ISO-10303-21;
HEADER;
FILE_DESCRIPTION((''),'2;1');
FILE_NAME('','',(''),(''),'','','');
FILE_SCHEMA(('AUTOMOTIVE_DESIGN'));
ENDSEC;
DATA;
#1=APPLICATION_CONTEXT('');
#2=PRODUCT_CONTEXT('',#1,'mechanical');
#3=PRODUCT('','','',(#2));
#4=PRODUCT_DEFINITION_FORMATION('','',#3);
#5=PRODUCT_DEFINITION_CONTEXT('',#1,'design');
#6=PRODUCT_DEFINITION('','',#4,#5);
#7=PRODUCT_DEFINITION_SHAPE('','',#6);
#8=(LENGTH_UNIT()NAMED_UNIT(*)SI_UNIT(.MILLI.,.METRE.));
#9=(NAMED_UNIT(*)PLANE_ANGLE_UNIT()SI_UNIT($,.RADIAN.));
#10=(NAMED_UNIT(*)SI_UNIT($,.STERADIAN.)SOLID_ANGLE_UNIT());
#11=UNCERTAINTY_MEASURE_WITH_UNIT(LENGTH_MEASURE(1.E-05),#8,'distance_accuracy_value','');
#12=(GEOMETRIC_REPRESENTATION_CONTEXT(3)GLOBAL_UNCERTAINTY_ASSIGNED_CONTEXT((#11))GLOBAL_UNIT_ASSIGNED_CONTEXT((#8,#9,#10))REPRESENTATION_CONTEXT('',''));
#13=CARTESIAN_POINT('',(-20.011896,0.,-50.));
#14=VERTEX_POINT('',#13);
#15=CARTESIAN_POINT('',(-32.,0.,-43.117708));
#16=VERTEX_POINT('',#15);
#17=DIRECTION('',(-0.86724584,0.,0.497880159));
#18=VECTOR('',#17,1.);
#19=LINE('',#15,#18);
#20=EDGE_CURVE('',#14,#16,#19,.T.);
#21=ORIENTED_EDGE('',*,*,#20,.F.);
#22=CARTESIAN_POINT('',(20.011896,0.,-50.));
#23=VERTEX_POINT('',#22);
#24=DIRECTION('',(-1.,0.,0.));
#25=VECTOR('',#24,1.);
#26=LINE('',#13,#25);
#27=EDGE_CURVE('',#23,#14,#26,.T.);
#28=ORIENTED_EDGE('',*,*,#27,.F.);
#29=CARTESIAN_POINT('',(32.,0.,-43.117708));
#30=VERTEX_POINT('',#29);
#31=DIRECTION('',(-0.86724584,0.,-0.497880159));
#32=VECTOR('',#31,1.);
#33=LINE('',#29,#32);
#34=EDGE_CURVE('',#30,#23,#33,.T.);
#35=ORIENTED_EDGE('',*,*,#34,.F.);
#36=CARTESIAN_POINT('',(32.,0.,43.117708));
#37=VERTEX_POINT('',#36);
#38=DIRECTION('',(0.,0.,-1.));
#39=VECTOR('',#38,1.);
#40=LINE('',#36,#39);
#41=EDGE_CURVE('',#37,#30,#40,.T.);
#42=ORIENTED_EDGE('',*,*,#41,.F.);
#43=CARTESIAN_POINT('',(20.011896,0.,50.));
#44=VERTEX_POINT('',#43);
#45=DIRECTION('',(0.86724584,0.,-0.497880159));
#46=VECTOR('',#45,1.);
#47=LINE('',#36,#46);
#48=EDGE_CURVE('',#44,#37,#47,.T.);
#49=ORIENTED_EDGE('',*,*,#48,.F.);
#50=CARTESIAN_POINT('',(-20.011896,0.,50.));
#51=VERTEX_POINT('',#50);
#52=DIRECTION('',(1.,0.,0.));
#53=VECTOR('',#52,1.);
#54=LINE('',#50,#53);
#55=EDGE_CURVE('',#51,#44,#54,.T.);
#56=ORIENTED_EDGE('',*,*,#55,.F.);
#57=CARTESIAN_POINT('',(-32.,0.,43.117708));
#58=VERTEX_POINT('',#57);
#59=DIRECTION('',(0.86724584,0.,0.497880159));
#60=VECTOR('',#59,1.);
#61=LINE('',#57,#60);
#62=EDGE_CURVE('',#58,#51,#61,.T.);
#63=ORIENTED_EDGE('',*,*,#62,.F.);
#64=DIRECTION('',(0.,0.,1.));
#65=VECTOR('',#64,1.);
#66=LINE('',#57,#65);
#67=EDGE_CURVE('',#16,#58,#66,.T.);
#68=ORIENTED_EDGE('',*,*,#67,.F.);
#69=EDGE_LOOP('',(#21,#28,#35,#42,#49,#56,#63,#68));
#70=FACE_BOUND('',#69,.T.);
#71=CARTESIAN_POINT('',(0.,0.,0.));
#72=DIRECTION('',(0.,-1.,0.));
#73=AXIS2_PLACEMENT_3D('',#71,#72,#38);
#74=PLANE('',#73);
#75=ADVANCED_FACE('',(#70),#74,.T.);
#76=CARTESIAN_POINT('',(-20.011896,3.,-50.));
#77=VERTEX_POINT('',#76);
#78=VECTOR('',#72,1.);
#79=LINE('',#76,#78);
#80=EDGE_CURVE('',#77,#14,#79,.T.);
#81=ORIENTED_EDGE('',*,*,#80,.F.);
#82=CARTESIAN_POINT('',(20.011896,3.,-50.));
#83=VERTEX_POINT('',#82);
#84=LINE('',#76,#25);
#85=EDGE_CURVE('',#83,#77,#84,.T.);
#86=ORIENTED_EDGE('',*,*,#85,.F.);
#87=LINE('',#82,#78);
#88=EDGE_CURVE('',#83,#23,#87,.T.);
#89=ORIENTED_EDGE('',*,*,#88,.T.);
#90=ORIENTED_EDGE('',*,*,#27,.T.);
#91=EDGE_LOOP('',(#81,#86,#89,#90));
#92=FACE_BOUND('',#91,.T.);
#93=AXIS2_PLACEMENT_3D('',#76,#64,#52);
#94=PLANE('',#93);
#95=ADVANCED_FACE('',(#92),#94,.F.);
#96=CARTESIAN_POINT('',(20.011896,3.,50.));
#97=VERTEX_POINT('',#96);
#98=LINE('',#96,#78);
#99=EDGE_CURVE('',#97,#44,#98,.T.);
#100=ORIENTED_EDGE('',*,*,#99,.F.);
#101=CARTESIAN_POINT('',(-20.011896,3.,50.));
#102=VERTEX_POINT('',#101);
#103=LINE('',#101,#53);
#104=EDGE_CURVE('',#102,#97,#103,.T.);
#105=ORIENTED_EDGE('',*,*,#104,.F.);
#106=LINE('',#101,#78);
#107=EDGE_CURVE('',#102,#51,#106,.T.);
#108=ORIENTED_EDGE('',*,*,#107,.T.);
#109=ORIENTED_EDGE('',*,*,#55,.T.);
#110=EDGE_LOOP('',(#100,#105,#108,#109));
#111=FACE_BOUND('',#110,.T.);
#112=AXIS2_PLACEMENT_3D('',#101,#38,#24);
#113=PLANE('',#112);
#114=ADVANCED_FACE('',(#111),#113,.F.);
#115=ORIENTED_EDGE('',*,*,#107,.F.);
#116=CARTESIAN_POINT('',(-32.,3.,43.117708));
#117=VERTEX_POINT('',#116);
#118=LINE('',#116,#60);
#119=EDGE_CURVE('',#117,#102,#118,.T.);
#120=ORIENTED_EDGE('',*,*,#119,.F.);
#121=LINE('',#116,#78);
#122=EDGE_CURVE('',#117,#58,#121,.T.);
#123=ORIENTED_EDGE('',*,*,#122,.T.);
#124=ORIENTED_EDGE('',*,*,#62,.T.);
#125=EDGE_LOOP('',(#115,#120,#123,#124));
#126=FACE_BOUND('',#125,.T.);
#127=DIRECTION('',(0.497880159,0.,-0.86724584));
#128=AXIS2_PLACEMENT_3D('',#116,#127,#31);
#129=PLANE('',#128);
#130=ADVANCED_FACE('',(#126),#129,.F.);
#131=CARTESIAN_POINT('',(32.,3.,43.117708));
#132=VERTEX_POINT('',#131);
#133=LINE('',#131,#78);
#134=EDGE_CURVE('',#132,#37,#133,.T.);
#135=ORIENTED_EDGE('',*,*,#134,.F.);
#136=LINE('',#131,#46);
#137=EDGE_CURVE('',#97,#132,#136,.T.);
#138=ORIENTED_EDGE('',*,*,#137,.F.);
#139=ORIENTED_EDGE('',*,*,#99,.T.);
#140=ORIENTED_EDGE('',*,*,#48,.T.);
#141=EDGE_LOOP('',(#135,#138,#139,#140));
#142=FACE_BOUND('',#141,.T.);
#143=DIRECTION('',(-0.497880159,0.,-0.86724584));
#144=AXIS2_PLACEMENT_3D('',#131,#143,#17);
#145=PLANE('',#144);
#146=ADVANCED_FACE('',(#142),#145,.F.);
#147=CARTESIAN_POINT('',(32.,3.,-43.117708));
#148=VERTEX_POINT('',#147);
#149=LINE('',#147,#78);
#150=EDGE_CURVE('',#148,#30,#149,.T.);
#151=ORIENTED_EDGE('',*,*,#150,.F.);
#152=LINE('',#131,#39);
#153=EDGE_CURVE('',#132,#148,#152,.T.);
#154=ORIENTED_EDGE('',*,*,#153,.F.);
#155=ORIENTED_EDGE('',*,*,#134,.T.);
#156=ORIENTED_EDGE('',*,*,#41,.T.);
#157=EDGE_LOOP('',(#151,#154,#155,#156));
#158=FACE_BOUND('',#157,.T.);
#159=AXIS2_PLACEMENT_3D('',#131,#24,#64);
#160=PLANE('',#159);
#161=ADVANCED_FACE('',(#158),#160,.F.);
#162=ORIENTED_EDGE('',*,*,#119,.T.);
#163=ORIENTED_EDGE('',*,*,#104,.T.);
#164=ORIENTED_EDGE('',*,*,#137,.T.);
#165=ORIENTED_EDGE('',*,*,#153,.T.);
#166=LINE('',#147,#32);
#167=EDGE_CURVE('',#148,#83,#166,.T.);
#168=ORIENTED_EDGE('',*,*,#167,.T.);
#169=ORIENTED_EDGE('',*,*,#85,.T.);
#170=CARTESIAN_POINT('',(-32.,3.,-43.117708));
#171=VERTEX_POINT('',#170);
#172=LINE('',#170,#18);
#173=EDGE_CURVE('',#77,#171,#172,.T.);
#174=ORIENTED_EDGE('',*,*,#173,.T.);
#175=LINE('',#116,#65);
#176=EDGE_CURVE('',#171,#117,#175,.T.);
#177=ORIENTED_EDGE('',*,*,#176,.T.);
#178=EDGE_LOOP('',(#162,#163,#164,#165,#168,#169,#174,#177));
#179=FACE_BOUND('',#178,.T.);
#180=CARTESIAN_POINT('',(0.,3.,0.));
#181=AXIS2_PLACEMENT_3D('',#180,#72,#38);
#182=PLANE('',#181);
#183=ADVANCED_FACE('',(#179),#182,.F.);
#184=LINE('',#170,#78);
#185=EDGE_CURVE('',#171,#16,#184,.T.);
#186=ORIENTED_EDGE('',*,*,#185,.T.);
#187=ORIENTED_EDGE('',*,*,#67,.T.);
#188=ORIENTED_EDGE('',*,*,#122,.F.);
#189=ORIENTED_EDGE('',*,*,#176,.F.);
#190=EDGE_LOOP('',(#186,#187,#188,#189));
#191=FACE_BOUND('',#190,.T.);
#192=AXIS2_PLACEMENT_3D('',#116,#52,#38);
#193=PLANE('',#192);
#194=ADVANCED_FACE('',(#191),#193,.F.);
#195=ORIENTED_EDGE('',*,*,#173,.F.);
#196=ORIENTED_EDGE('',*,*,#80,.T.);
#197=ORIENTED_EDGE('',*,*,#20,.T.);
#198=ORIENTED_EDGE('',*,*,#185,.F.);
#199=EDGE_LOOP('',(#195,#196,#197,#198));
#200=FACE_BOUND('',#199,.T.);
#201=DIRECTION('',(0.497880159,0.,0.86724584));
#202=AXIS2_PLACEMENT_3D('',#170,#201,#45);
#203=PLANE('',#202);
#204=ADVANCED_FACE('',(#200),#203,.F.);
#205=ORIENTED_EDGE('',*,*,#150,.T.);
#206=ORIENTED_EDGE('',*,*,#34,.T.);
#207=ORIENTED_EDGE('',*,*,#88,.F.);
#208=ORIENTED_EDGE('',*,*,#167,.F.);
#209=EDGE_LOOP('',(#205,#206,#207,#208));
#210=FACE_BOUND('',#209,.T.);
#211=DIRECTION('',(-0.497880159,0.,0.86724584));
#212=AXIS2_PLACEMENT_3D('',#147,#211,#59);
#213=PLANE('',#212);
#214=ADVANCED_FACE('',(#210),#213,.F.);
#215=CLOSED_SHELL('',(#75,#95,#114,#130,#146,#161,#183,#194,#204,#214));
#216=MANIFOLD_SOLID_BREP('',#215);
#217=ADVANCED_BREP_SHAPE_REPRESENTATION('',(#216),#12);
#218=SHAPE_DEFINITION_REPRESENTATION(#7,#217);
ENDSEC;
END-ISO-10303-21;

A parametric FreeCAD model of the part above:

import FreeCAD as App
import Part
import Sketcher
from FreeCAD import Vector


def add_polygon(sketch, points):
    """Adds a closed chain of lines whose ends are joined by coincident constraints."""
    first, n = sketch.GeometryCount, len(points)
    for a, b in zip(points, points[1:] + points[:1]):
        sketch.addGeometry(Part.LineSegment(App.Vector(*a, 0), App.Vector(*b, 0)), False)
    for i in range(n):
        sketch.addConstraint(Sketcher.Constraint("Coincident", first + i, 2, first + (i + 1) % n, 1))

doc = App.newDocument("Part")
body = doc.addObject("PartDesign::Body", "Body")

# Sketch on XZ plane
sketch1 = body.newObject("Sketcher::SketchObject", "Sketch")
sketch1.AttachmentSupport = (doc.getObject("XZ_Plane"), [""])
sketch1.MapMode = "FlatFace"
add_polygon(sketch1, [(-32, 43), (-20, 50), (20, 50), (32, 43), (32, -43), (20, -50), (-20, -50), (-32, -43)])  # lines 0-7
sketch1.addConstraint([
    Sketcher.Constraint("Horizontal", 1),
    Sketcher.Constraint("Vertical", 3),
    Sketcher.Constraint("Horizontal", 5),
    Sketcher.Constraint("Vertical", 7),
    Sketcher.Constraint("Symmetric", 0, 2, 4, 2, -1, 1),
    Sketcher.Constraint("Symmetric", 2, 2, 6, 2, -1, 1),
    Sketcher.Constraint("Parallel", 0, 4),
    Sketcher.Constraint("Parallel", 2, 6),
    Sketcher.Constraint("Horizontal", 3, 2, 6, 2),
    Sketcher.Constraint("Vertical", 1, 2, 4, 2),
    Sketcher.Constraint("DistanceY", -1, 1, 0, 2, 50.0),
    Sketcher.Constraint("DistanceX", -1, 1, 2, 2, 32.0),
    Sketcher.Constraint("DistanceX", 1, 1, 1, 2, 40.023791),
    Sketcher.Constraint("Distance", 0, 13.823191),
])
pad1 = body.newObject("PartDesign::Pad", "Pad")
pad1.Profile = sketch1
pad1.Length = 3
pad1.Reversed = True

doc.recompute()
